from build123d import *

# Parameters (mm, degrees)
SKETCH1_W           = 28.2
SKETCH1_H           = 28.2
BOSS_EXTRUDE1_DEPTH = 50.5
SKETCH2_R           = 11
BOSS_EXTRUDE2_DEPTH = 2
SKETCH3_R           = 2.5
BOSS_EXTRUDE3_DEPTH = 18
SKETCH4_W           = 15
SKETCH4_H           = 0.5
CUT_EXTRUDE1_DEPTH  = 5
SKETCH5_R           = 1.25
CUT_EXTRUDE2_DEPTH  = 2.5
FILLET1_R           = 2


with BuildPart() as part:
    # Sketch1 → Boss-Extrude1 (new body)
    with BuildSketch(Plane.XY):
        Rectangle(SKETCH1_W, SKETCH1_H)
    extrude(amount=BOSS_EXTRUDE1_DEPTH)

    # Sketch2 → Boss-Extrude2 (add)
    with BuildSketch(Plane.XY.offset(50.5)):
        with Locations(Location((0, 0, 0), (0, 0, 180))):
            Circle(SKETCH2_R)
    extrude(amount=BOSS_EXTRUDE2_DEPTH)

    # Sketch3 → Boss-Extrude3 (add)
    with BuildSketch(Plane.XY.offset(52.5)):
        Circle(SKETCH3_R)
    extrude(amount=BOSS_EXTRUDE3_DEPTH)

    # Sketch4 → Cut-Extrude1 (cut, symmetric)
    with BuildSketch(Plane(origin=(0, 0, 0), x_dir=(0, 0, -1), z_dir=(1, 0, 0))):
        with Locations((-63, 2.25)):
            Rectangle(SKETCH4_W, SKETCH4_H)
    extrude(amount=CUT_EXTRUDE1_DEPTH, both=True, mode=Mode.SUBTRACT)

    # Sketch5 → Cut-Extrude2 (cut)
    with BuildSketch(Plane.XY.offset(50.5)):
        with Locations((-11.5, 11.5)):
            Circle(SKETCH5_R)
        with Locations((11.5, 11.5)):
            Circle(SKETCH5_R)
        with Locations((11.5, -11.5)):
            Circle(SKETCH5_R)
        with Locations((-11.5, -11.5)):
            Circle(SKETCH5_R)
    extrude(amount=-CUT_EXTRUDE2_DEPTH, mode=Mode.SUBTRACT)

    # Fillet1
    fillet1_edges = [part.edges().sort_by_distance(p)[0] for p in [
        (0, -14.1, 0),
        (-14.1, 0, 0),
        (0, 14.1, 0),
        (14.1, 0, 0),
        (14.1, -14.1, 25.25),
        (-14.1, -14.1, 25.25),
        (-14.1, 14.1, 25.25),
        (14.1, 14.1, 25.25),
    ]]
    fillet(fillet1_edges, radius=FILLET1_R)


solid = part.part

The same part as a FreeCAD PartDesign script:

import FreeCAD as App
import Part
import Sketcher
from FreeCAD import Vector


def edges_at(feature, points):
    """Names of the edges that pass closest to the given points."""
    edges = feature.Shape.Edges
    near = lambda p: min(range(len(edges)), key=lambda i: edges[i].distToShape(Part.Vertex(*p))[0])
    return sorted({f"Edge{near(p) + 1}" for p in points})

doc = App.newDocument("Part")
body = doc.addObject("PartDesign::Body", "Body")

sketch1 = doc.addObject("Sketcher::SketchObject", "Sketch")
body.addObject(sketch1)
sketch1.AttachmentSupport = (doc.XY_Plane, [""])
sketch1.MapMode = "FlatFace"
sketch1.addGeometry([
    Part.LineSegment(Vector(-14.1, 14.1, 0), Vector(-14.1, -14.1, 0)),
    Part.LineSegment(Vector(-14.1, -14.1, 0), Vector(14.1, -14.1, 0)),
    Part.LineSegment(Vector(14.1, -14.1, 0), Vector(14.1, 14.1, 0)),
    Part.LineSegment(Vector(14.1, 14.1, 0), Vector(-14.1, 14.1, 0)),
], False)
sketch1.addConstraint([
    Sketcher.Constraint("Coincident", 0, 2, 1, 1),
    Sketcher.Constraint("Coincident", 1, 2, 2, 1),
    Sketcher.Constraint("Coincident", 2, 2, 3, 1),
    Sketcher.Constraint("Coincident", 3, 2, 0, 1),
    Sketcher.Constraint("Vertical", 0),
    Sketcher.Constraint("Horizontal", 1),
    Sketcher.Constraint("Vertical", 2),
    Sketcher.Constraint("Horizontal", 3),
    Sketcher.Constraint("Symmetric", 0, 2, 2, 2, -1, 1),
    Sketcher.Constraint("Equal", 3, 0),
    Sketcher.Constraint("DistanceX", 1, 1, 1, 2, 28.2),
])
pad1 = doc.addObject("PartDesign::Pad", "Pad")
body.addObject(pad1)
pad1.Profile = sketch1
pad1.Length = 50.5

sketch2 = doc.addObject("Sketcher::SketchObject", "Sketch001")
body.addObject(sketch2)
sketch2.AttachmentSupport = (doc.XY_Plane, [""])
sketch2.MapMode = "FlatFace"
sketch2.AttachmentOffset = App.Placement(Vector(0, 0, 50.5), App.Rotation())
sketch2.addGeometry(Part.Circle(Vector(0, 0, 0), Vector(0, 0, 1), 11), False)
sketch2.addConstraint([
    Sketcher.Constraint("Coincident", 0, 3, -1, 1),
    Sketcher.Constraint("Diameter", 0, 22.0),
])
pad2 = doc.addObject("PartDesign::Pad", "Pad001")
body.addObject(pad2)
pad2.Profile = sketch2
pad2.Length = 2

sketch3 = doc.addObject("Sketcher::SketchObject", "Sketch002")
body.addObject(sketch3)
sketch3.AttachmentSupport = (doc.XY_Plane, [""])
sketch3.MapMode = "FlatFace"
sketch3.AttachmentOffset = App.Placement(Vector(0, 0, 52.5), App.Rotation())
sketch3.addGeometry(Part.Circle(Vector(0, 0, 0), Vector(0, 0, 1), 2.5), False)
sketch3.addConstraint([
    Sketcher.Constraint("Coincident", 0, 3, -1, 1),
    Sketcher.Constraint("Diameter", 0, 5.0),
])
pad3 = doc.addObject("PartDesign::Pad", "Pad002")
body.addObject(pad3)
pad3.Profile = sketch3
pad3.Length = 18

sketch4 = doc.addObject("Sketcher::SketchObject", "Sketch003")
body.addObject(sketch4)
sketch4.AttachmentSupport = (doc.YZ_Plane, [""])
sketch4.MapMode = "FlatFace"
sketch4.addGeometry([
    Part.LineSegment(Vector(2.5, 70.5, 0), Vector(2, 70.5, 0)),
    Part.LineSegment(Vector(2, 70.5, 0), Vector(2, 55.5, 0)),
    Part.LineSegment(Vector(2, 55.5, 0), Vector(2.5, 55.5, 0)),
    Part.LineSegment(Vector(2.5, 55.5, 0), Vector(2.5, 70.5, 0)),
], False)
sketch4.addConstraint([
    Sketcher.Constraint("Coincident", 0, 2, 1, 1),
    Sketcher.Constraint("Coincident", 1, 2, 2, 1),
    Sketcher.Constraint("Coincident", 2, 2, 3, 1),
    Sketcher.Constraint("Coincident", 3, 2, 0, 1),
    Sketcher.Constraint("Horizontal", 0),
    Sketcher.Constraint("Vertical", 1),
    Sketcher.Constraint("Horizontal", 2),
    Sketcher.Constraint("Vertical", 3),
    Sketcher.Constraint("DistanceY", 1, 2, 1, 1, 15.0),
    Sketcher.Constraint("DistanceX", 0, 2, 0, 1, 0.5),
    Sketcher.Constraint("DistanceX", -1, 1, 0, 2, 2.0),
    Sketcher.Constraint("DistanceY", -1, 1, 0, 2, 70.5),
])
pocket1 = doc.addObject("PartDesign::Pocket", "Pocket")
body.addObject(pocket1)
pocket1.Profile = sketch4
pocket1.Length = 10
pocket1.Midplane = True

sketch5 = doc.addObject("Sketcher::SketchObject", "Sketch004")
body.addObject(sketch5)
sketch5.AttachmentSupport = (doc.XY_Plane, [""])
sketch5.MapMode = "FlatFace"
sketch5.AttachmentOffset = App.Placement(Vector(0, 0, 50.5), App.Rotation())
sketch5.addGeometry([
    Part.Circle(Vector(-11.5, 11.5, 0), Vector(0, 0, 1), 1.25),
    Part.Circle(Vector(11.5, 11.5, 0), Vector(0, 0, 1), 1.25),
    Part.Circle(Vector(11.5, -11.5, 0), Vector(0, 0, 1), 1.25),
    Part.Circle(Vector(-11.5, -11.5, 0), Vector(0, 0, 1), 1.25),
], False)
sketch5.addConstraint([
    Sketcher.Constraint("Equal", 0, 1),
    Sketcher.Constraint("Equal", 1, 2),
    Sketcher.Constraint("Equal", 2, 3),
    Sketcher.Constraint("Symmetric", 0, 3, 2, 3, -1, 1),
    Sketcher.Constraint("Symmetric", 1, 3, 3, 3, -1, 1),
    Sketcher.Constraint("Symmetric", 0, 3, 1, 3, -2),
    Sketcher.Constraint("Diameter", 0, 2.5),
    Sketcher.Constraint("DistanceX", 0, 3, 1, 3, 23.0),
    Sketcher.Constraint("DistanceY", 2, 3, 1, 3, 23.0),
])
pocket2 = doc.addObject("PartDesign::Pocket", "Pocket001")
body.addObject(pocket2)
pocket2.Profile = sketch5
pocket2.Length = 2.5
doc.recompute()

fillet = doc.addObject("PartDesign::Fillet", "Fillet")
body.addObject(fillet)
fillet.Base = (pocket2, edges_at(pocket2, [
    (0, -14.1, 0),
    (-14.1, 0, 0),
    (0, 14.1, 0),
    (14.1, 0, 0),
    (14.1, -14.1, 25.25),
    (-14.1, -14.1, 25.25),
    (-14.1, 14.1, 25.25),
    (14.1, 14.1, 25.25),
]))
fillet.Radius = 2

doc.recompute()
